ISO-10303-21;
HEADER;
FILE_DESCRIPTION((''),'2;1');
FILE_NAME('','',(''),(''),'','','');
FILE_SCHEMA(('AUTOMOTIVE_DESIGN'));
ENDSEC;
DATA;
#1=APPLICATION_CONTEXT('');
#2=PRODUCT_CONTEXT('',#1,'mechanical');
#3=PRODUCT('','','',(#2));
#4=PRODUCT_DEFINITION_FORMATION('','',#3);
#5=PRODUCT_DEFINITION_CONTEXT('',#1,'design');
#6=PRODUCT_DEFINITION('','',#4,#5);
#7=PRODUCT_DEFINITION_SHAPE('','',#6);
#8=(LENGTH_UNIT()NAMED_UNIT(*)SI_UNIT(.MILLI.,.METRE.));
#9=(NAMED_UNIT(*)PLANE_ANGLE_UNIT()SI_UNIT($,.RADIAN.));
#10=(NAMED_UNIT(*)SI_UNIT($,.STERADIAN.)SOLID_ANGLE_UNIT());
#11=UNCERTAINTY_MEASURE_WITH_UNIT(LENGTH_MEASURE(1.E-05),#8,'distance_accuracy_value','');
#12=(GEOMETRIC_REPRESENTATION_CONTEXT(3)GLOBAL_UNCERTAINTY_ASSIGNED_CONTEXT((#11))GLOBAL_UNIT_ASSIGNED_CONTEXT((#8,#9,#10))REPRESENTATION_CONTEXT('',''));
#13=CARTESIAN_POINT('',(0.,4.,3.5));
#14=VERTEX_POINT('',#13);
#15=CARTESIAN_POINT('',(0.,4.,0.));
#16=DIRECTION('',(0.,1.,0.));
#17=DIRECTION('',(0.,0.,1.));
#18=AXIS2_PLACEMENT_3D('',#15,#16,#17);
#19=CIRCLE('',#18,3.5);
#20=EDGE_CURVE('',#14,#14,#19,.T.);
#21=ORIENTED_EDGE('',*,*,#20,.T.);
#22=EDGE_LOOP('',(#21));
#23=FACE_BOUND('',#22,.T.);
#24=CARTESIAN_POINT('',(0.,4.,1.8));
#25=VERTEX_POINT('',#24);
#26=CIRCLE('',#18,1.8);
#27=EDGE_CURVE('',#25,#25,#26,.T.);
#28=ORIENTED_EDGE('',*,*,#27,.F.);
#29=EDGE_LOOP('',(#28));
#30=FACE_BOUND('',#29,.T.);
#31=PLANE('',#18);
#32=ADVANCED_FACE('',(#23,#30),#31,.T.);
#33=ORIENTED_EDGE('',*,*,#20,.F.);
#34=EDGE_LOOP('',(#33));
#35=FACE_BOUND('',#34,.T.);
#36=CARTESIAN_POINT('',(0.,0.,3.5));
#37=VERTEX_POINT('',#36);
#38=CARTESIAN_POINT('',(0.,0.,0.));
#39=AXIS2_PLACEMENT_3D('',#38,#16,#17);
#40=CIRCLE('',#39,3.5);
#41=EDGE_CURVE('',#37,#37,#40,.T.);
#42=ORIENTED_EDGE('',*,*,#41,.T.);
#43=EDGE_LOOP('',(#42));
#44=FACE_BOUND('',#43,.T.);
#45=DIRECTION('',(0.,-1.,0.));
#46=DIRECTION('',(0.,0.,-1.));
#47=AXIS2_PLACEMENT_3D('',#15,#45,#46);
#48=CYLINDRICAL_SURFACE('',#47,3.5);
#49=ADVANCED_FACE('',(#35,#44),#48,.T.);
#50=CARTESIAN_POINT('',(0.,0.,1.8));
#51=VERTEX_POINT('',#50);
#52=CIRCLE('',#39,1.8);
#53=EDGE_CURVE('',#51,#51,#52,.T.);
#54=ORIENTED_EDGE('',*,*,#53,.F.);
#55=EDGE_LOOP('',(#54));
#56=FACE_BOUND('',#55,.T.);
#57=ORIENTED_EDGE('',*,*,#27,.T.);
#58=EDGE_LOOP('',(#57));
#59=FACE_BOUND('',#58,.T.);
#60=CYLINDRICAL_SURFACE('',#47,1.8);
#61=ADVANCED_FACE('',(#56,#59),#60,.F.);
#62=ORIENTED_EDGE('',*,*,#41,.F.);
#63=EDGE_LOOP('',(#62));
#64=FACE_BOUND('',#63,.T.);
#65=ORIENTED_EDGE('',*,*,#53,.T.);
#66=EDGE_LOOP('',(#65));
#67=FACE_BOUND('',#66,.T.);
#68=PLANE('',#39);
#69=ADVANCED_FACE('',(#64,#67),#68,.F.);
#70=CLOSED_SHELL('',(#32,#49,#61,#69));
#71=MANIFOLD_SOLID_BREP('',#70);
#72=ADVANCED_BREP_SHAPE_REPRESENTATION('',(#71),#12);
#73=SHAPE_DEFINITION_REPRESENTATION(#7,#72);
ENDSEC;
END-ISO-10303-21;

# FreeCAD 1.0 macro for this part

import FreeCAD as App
import Part
import Sketcher
from FreeCAD import Vector
Q = App.Units.Quantity

doc = App.newDocument("Part")
body = doc.addObject("PartDesign::Body", "Body")

sketch1 = doc.addObject("Sketcher::SketchObject", "Sketch")
body.addObject(sketch1)
sketch1.AttachmentSupport = (doc.XZ_Plane, [""])
sketch1.MapMode = "FlatFace"
sketch1.addGeometry([
    Part.Circle(Vector(0, 0, 0), Vector(0, 0, 1), 3.5),
    Part.Circle(Vector(0, 0, 0), Vector(0, 0, 1), 1.8),
], False)
sketch1.addConstraint([
    Sketcher.Constraint("Coincident", 0, 3, -1, 1),
    Sketcher.Constraint("Coincident", 1, 3, -1, 1),
    Sketcher.Constraint("Diameter", 0, Q("7 mm")),
    Sketcher.Constraint("Diameter", 1, Q("3.6 mm")),
])
pad1 = doc.addObject("PartDesign::Pad", "Pad")
body.addObject(pad1)
pad1.Profile = sketch1
pad1.Length = 4
pad1.Reversed = True

doc.recompute()
